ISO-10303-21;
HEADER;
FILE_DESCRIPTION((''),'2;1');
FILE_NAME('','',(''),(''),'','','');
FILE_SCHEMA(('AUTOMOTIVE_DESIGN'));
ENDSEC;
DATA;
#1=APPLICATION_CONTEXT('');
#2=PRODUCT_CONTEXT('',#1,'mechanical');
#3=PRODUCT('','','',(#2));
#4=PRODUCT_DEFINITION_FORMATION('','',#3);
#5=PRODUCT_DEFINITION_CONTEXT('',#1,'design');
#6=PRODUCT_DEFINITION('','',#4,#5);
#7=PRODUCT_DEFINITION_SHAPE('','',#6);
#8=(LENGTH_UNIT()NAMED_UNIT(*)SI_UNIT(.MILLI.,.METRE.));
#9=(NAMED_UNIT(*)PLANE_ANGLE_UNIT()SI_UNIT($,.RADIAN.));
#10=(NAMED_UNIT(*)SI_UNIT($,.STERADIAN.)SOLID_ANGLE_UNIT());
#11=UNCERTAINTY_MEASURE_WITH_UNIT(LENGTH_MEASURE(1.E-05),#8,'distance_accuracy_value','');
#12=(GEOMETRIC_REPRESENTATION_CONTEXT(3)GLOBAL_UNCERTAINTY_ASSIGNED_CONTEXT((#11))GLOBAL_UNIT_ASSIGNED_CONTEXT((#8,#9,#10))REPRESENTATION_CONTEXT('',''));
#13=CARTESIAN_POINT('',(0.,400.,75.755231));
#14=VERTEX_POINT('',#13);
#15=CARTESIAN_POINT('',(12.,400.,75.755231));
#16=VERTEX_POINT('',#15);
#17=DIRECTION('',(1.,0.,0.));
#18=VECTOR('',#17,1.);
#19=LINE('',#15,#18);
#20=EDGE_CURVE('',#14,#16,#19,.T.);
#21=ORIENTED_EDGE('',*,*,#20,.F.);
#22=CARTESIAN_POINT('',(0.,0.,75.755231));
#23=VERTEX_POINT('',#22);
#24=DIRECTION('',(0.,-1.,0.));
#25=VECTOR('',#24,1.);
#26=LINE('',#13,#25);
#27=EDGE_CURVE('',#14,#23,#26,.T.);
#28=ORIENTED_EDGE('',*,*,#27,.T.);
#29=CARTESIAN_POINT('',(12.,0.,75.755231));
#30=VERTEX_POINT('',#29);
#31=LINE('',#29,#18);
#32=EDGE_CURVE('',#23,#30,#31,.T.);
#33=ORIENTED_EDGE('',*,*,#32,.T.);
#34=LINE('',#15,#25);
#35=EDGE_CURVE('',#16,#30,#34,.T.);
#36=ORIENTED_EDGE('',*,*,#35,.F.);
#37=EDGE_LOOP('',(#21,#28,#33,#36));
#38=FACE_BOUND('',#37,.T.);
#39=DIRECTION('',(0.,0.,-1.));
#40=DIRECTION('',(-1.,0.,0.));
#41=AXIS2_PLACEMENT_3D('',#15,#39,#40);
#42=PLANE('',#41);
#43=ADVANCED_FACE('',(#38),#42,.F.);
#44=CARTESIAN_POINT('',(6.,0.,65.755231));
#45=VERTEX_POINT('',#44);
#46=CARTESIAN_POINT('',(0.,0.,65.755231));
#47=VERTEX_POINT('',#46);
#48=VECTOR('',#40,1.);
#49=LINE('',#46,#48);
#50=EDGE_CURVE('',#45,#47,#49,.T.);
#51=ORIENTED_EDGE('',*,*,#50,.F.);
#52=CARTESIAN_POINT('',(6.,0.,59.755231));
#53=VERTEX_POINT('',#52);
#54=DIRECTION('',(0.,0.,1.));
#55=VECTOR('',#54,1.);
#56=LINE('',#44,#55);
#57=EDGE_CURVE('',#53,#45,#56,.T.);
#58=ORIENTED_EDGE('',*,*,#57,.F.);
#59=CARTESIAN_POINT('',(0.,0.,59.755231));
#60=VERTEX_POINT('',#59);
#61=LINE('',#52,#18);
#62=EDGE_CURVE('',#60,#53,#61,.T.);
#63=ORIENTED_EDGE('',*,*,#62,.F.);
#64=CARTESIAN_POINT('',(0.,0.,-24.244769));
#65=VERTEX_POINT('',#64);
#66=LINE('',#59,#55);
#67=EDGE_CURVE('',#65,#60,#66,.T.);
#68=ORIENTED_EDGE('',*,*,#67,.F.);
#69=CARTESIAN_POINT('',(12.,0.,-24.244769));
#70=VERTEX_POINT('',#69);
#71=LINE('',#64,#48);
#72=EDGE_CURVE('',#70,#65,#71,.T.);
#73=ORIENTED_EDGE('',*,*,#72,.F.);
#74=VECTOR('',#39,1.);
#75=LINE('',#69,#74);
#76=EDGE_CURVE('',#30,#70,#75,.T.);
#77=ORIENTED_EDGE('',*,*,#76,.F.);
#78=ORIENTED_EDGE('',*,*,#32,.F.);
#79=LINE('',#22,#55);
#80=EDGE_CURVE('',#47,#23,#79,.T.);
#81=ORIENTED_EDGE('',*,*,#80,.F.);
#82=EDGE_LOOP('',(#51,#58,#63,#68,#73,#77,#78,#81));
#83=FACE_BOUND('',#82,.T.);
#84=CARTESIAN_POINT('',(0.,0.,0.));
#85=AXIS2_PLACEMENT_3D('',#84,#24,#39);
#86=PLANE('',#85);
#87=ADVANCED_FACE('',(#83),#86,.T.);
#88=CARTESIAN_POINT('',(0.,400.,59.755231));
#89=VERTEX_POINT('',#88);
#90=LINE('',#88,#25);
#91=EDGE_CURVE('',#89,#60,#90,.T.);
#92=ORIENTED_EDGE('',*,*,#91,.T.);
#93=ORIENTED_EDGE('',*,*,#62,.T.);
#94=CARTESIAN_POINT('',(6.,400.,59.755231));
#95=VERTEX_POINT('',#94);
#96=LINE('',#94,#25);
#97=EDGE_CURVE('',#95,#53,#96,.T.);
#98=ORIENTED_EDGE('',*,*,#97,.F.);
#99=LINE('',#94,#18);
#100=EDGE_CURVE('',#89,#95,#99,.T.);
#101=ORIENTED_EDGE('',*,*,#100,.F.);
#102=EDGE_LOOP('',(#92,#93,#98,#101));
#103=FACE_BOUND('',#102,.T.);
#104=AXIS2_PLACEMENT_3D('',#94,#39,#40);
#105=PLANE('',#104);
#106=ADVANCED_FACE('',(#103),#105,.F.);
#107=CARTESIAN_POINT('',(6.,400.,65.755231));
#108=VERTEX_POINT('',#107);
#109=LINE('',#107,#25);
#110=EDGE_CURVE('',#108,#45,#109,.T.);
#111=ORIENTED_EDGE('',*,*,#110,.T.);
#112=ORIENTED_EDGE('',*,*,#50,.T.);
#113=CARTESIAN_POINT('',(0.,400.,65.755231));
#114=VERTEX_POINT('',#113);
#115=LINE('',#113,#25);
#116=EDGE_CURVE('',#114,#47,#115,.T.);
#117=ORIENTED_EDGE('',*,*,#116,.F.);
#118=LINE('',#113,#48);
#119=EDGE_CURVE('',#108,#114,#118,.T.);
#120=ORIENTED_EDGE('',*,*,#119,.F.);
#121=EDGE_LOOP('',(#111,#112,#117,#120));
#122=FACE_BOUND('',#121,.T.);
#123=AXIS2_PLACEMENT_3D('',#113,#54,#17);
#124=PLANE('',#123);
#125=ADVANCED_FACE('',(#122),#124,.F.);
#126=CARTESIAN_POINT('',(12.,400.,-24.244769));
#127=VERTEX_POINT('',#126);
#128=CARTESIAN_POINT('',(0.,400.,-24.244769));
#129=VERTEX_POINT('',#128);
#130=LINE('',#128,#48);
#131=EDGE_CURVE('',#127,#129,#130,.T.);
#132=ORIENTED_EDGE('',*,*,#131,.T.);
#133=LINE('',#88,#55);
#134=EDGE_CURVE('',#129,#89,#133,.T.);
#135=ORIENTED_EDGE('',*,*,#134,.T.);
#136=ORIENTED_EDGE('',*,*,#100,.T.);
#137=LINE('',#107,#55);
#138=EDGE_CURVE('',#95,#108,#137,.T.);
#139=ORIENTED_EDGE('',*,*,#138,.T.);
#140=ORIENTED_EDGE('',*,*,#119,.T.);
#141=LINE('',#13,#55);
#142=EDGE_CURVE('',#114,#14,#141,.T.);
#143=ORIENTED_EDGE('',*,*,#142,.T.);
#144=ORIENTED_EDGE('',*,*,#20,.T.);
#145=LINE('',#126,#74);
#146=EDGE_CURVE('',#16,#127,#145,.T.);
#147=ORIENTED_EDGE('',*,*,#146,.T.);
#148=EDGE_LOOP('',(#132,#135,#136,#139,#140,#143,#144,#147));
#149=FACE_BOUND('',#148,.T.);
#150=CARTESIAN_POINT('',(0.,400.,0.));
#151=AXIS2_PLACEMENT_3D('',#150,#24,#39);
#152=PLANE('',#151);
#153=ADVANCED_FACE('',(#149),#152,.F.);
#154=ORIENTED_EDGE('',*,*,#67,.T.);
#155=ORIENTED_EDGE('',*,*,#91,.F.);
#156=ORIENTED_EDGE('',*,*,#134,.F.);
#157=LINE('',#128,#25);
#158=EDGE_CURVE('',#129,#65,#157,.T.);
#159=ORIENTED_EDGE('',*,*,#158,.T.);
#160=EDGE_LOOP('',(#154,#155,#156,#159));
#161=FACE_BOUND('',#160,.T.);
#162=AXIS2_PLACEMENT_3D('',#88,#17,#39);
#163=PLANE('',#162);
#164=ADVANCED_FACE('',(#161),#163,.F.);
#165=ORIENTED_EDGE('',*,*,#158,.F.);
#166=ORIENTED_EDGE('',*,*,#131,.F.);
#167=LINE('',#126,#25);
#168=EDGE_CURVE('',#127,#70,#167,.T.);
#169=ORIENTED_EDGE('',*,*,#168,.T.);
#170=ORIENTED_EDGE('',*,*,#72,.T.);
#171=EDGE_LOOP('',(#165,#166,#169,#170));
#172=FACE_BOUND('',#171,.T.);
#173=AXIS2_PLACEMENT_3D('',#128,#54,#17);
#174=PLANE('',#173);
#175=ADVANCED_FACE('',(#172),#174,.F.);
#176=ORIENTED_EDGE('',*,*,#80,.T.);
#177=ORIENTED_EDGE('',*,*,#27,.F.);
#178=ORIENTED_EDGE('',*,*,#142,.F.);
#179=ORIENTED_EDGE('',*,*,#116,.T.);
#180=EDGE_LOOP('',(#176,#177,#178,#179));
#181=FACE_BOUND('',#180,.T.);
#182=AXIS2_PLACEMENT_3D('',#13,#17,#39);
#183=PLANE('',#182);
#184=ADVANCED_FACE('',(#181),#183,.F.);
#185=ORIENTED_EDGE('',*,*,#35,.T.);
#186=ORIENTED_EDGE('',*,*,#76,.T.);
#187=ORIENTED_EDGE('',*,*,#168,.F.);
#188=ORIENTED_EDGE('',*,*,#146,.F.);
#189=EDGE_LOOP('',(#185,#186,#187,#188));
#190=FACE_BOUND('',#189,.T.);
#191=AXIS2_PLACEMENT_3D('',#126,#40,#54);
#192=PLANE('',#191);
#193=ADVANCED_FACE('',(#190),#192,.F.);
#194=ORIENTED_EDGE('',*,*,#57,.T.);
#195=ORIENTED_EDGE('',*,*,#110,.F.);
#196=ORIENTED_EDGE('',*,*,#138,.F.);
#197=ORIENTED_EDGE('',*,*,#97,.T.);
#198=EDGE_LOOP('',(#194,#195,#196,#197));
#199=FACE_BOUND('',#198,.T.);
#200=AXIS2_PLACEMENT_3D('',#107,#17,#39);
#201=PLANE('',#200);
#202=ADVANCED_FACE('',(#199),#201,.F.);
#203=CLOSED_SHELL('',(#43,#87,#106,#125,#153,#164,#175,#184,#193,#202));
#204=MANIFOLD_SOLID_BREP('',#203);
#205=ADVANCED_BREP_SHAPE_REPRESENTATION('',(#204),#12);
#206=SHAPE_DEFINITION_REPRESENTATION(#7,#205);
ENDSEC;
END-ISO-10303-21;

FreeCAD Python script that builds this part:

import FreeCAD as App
import Part
import Sketcher
from FreeCAD import Vector

doc = App.newDocument("Part")
body = doc.addObject("PartDesign::Body", "Body")

# Sketch on XZ plane
sketch1 = body.newObject("Sketcher::SketchObject", "Sketch")
sketch1.AttachmentSupport = (doc.getObject("XZ_Plane"), [""])
sketch1.MapMode = "FlatFace"
sketch1.addGeometry([
    Part.LineSegment(Vector(12, 76, 0), Vector(12, -24, 0)),  # 0
    Part.LineSegment(Vector(12, -24, 0), Vector(0, -24, 0)),  # 1
    Part.LineSegment(Vector(0, -24, 0), Vector(0, 60, 0)),  # 2
    Part.LineSegment(Vector(0, 60, 0), Vector(6, 60, 0)),  # 3
    Part.LineSegment(Vector(6, 60, 0), Vector(6, 66, 0)),  # 4
    Part.LineSegment(Vector(6, 66, 0), Vector(0, 66, 0)),  # 5
    Part.LineSegment(Vector(0, 66, 0), Vector(0, 76, 0)),  # 6
    Part.LineSegment(Vector(0, 76, 0), Vector(12, 76, 0)),  # 7
], False)
sketch1.addConstraint([
    Sketcher.Constraint("Coincident", 0, 2, 1, 1),
    Sketcher.Constraint("Coincident", 1, 2, 2, 1),
    Sketcher.Constraint("Coincident", 2, 2, 3, 1),
    Sketcher.Constraint("Coincident", 3, 2, 4, 1),
    Sketcher.Constraint("Coincident", 4, 2, 5, 1),
    Sketcher.Constraint("Coincident", 5, 2, 6, 1),
    Sketcher.Constraint("Coincident", 6, 2, 7, 1),
    Sketcher.Constraint("Coincident", 7, 2, 0, 1),
    Sketcher.Constraint("Vertical", 0),
    Sketcher.Constraint("Horizontal", 1),
    Sketcher.Constraint("Vertical", 2),
    Sketcher.Constraint("Horizontal", 3),
    Sketcher.Constraint("Vertical", 4),
    Sketcher.Constraint("Horizontal", 5),
    Sketcher.Constraint("Vertical", 6),
    Sketcher.Constraint("Horizontal", 7),
    Sketcher.Constraint("PointOnObject", 1, 2, -2),
    Sketcher.Constraint("PointOnObject", 5, 2, -2),
    Sketcher.Constraint("Equal", 5, 4),
    Sketcher.Constraint("DistanceX", 1, 2, 1, 1, 12.0),
    Sketcher.Constraint("DistanceX", 3, 1, 3, 2, 6.0),
    Sketcher.Constraint("DistanceY", 0, 2, 0, 1, 100.0),
    Sketcher.Constraint("DistanceY", 2, 1, 2, 2, 84.0),
    Sketcher.Constraint("DistanceY", 0, 2, -1, 1, 24.244769),
])
pad1 = body.newObject("PartDesign::Pad", "Pad")
pad1.Profile = sketch1
pad1.Length = 400
pad1.Reversed = True

doc.recompute()
